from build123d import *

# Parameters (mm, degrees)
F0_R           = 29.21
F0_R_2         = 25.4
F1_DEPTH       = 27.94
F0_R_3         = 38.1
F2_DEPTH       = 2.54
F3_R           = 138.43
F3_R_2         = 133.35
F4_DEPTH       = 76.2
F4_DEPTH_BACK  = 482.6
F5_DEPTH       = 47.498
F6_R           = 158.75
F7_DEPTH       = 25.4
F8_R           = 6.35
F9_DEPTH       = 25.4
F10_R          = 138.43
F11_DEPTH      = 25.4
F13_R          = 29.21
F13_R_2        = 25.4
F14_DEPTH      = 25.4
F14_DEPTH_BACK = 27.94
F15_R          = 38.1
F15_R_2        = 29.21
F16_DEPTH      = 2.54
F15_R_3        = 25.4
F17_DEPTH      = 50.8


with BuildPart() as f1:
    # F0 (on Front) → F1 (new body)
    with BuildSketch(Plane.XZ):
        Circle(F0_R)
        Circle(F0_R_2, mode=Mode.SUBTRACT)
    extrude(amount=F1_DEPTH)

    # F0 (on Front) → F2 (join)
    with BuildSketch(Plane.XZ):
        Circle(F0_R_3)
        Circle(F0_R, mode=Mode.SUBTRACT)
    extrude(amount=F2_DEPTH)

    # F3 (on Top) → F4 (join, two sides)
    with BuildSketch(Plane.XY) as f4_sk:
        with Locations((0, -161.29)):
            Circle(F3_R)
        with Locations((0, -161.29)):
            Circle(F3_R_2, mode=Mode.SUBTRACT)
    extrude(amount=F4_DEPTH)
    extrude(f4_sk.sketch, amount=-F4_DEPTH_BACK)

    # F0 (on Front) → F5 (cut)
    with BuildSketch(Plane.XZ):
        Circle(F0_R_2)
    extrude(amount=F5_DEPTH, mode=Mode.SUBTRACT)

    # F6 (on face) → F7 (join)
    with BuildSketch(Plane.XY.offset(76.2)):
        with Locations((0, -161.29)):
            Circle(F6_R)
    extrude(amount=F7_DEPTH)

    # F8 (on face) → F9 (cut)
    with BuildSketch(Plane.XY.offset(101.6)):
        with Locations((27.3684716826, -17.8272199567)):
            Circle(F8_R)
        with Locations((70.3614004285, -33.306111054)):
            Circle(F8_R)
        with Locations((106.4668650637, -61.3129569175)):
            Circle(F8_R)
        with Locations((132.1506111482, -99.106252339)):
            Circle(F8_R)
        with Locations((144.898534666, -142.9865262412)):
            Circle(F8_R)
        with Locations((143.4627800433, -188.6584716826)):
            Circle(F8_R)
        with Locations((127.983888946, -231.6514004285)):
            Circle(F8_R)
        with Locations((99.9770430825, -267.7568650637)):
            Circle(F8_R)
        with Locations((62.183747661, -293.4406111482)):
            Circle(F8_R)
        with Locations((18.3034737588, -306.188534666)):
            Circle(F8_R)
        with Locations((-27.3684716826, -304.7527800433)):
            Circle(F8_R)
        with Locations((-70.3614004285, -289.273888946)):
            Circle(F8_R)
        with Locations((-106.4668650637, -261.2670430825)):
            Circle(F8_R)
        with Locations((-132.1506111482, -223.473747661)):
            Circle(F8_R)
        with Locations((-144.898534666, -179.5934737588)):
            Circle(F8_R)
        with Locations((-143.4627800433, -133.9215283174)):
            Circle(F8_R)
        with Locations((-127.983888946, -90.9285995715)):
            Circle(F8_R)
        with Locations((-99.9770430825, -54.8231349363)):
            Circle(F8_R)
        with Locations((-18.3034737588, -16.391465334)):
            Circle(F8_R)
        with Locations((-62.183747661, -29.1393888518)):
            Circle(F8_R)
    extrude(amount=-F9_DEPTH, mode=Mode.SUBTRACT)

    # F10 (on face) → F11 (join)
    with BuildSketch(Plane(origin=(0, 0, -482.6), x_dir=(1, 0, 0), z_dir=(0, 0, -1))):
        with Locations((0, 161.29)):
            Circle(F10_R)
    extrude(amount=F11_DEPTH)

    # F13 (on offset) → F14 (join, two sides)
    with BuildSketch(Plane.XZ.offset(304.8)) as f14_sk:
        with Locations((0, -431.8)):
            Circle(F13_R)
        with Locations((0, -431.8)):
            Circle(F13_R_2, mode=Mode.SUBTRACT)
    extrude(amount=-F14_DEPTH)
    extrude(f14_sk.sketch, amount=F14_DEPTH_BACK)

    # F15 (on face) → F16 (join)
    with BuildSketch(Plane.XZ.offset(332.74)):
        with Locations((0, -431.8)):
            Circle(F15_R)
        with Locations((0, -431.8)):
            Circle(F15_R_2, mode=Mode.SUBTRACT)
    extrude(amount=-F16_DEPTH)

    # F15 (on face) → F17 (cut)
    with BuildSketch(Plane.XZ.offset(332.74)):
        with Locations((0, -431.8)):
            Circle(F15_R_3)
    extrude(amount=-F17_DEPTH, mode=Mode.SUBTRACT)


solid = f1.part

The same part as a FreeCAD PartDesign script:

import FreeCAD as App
import Part
import Sketcher
Q = App.Units.Quantity

doc = App.newDocument("Part")
body = doc.addObject("PartDesign::Body", "Body")

sketch1 = doc.addObject("Sketcher::SketchObject", "Sketch")
body.addObject(sketch1)
sketch1.AttachmentSupport = (doc.XZ_Plane, [""])
sketch1.MapMode = "FlatFace"
sketch1.addGeometry([
    Part.Circle(App.Vector(0, 0, 0), App.Vector(0, 0, 1), 29),
    Part.Circle(App.Vector(0, 0, 0), App.Vector(0, 0, 1), 25),
], False)
sketch1.addConstraint([
    Sketcher.Constraint("Coincident", 0, 3, -1, 1),
    Sketcher.Constraint("Coincident", 1, 3, -1, 1),
    Sketcher.Constraint("Diameter", 1, Q("2 in")),
    Sketcher.Constraint("Diameter", 0, Q("2.3 in")),
])
pad1 = doc.addObject("PartDesign::Pad", "Pad")
body.addObject(pad1)
pad1.Profile = sketch1
pad1.Length = Q("1.1 in")

sketch2 = doc.addObject("Sketcher::SketchObject", "Sketch001")
body.addObject(sketch2)
sketch2.AttachmentSupport = (doc.XZ_Plane, [""])
sketch2.MapMode = "FlatFace"
sketch2.addGeometry([
    Part.Circle(App.Vector(0, 0, 0), App.Vector(0, 0, 1), 38),
    Part.Circle(App.Vector(0, 0, 0), App.Vector(0, 0, 1), 29),
], False)
sketch2.addConstraint([
    Sketcher.Constraint("Coincident", 0, 3, -1, 1),
    Sketcher.Constraint("Coincident", 1, 3, -1, 1),
    Sketcher.Constraint("Diameter", 0, Q("3 in")),
    Sketcher.Constraint("Diameter", 1, Q("2.3 in")),
])
pad2 = doc.addObject("PartDesign::Pad", "Pad001")
body.addObject(pad2)
pad2.Profile = sketch2
pad2.Length = Q("0.1 in")

sketch3 = doc.addObject("Sketcher::SketchObject", "Sketch002")
body.addObject(sketch3)
sketch3.AttachmentSupport = (doc.XY_Plane, [""])
sketch3.MapMode = "FlatFace"
sketch3.addGeometry([
    Part.Circle(App.Vector(0, -161, 0), App.Vector(0, 0, 1), 138),
    Part.Circle(App.Vector(0, -161, 0), App.Vector(0, 0, 1), 133),
], False)
sketch3.addConstraint([
    Sketcher.Constraint("Coincident", 1, 3, 0, 3),
    Sketcher.Constraint("PointOnObject", 0, 3, -2),
    Sketcher.Constraint("Diameter", 0, Q("10.9 in")),
    Sketcher.Constraint("Diameter", 1, Q("10.5 in")),
    Sketcher.Constraint("DistanceY", 0, 3, -1, 1, Q("6.35 in")),
])
pad3 = doc.addObject("PartDesign::Pad", "Pad002")
body.addObject(pad3)
pad3.Profile = sketch3
pad3.Type = "TwoLengths"
pad3.Length = Q("3 in")
pad3.Length2 = Q("19 in")

sketch4 = doc.addObject("Sketcher::SketchObject", "Sketch003")
body.addObject(sketch4)
sketch4.AttachmentSupport = (doc.XZ_Plane, [""])
sketch4.MapMode = "FlatFace"
sketch4.addGeometry(Part.Circle(App.Vector(0, 0, 0), App.Vector(0, 0, 1), 25), False)
sketch4.addConstraint([
    Sketcher.Constraint("Coincident", 0, 3, -1, 1),
    Sketcher.Constraint("Diameter", 0, Q("2 in")),
])
pocket1 = doc.addObject("PartDesign::Pocket", "Pocket")
body.addObject(pocket1)
pocket1.Profile = sketch4
pocket1.Length = Q("1.87 in")
pocket1.Reversed = True

sketch5 = doc.addObject("Sketcher::SketchObject", "Sketch004")
body.addObject(sketch5)
sketch5.AttachmentSupport = (doc.XY_Plane, [""])
sketch5.MapMode = "FlatFace"
sketch5.AttachmentOffset = App.Placement(App.Vector(0, 0, 3 * 25.4), App.Rotation())
sketch5.addGeometry(Part.Circle(App.Vector(0, -161, 0), App.Vector(0, 0, 1), 159), False)
sketch5.addConstraint([
    Sketcher.Constraint("PointOnObject", 0, 3, -2),
    Sketcher.Constraint("Diameter", 0, Q("12.5 in")),
    Sketcher.Constraint("DistanceY", 0, 3, -1, 1, Q("6.35 in")),
])
pad4 = doc.addObject("PartDesign::Pad", "Pad003")
body.addObject(pad4)
pad4.Profile = sketch5
pad4.Length = Q("1 in")

sketch6 = doc.addObject("Sketcher::SketchObject", "Sketch005")
body.addObject(sketch6)
sketch6.AttachmentSupport = (doc.XY_Plane, [""])
sketch6.MapMode = "FlatFace"
sketch6.AttachmentOffset = App.Placement(App.Vector(0, 0, 4 * 25.4), App.Rotation())
sketch6.addGeometry([
    Part.Circle(App.Vector(27, -18, 0), App.Vector(0, 0, 1), 6),
    Part.Circle(App.Vector(70, -33, 0), App.Vector(0, 0, 1), 6),
    Part.Circle(App.Vector(106, -61, 0), App.Vector(0, 0, 1), 6),
    Part.Circle(App.Vector(132, -99, 0), App.Vector(0, 0, 1), 6),
    Part.Circle(App.Vector(145, -143, 0), App.Vector(0, 0, 1), 6),
    Part.Circle(App.Vector(143, -189, 0), App.Vector(0, 0, 1), 6),
    Part.Circle(App.Vector(128, -232, 0), App.Vector(0, 0, 1), 6),
    Part.Circle(App.Vector(100, -268, 0), App.Vector(0, 0, 1), 6),
    Part.Circle(App.Vector(62, -293, 0), App.Vector(0, 0, 1), 6),
    Part.Circle(App.Vector(18, -306, 0), App.Vector(0, 0, 1), 6),
    Part.Circle(App.Vector(-27, -305, 0), App.Vector(0, 0, 1), 6),
    Part.Circle(App.Vector(-70, -289, 0), App.Vector(0, 0, 1), 6),
    Part.Circle(App.Vector(-106, -261, 0), App.Vector(0, 0, 1), 6),
    Part.Circle(App.Vector(-132, -223, 0), App.Vector(0, 0, 1), 6),
    Part.Circle(App.Vector(-145, -180, 0), App.Vector(0, 0, 1), 6),
    Part.Circle(App.Vector(-143, -134, 0), App.Vector(0, 0, 1), 6),
    Part.Circle(App.Vector(-128, -91, 0), App.Vector(0, 0, 1), 6),
    Part.Circle(App.Vector(-100, -55, 0), App.Vector(0, 0, 1), 6),
    Part.Circle(App.Vector(-18, -16, 0), App.Vector(0, 0, 1), 6),
    Part.Circle(App.Vector(-62, -29, 0), App.Vector(0, 0, 1), 6),
], False)
sketch6.addConstraint([
    Sketcher.Constraint("Equal", 0, 1),
    Sketcher.Constraint("Equal", 1, 2),
    Sketcher.Constraint("Equal", 2, 3),
    Sketcher.Constraint("Equal", 3, 4),
    Sketcher.Constraint("Equal", 4, 5),
    Sketcher.Constraint("Equal", 5, 6),
    Sketcher.Constraint("Equal", 6, 7),
    Sketcher.Constraint("Equal", 7, 8),
    Sketcher.Constraint("Equal", 8, 9),
    Sketcher.Constraint("Equal", 9, 10),
    Sketcher.Constraint("Equal", 10, 11),
    Sketcher.Constraint("Equal", 11, 12),
    Sketcher.Constraint("Equal", 12, 13),
    Sketcher.Constraint("Equal", 13, 14),
    Sketcher.Constraint("Equal", 14, 15),
    Sketcher.Constraint("Equal", 15, 16),
    Sketcher.Constraint("Equal", 16, 17),
    Sketcher.Constraint("Equal", 17, 18),
    Sketcher.Constraint("Equal", 18, 19),
    Sketcher.Constraint("Diameter", 0, Q("0.5 in")),
    Sketcher.Constraint("DistanceX", -1, 1, 1, 3, 70.3614),
    Sketcher.Constraint("DistanceY", 6, 3, -1, 1, 231.6514),
    Sketcher.Constraint("DistanceX", 11, 3, -1, 1, 70.3614),
    Sketcher.Constraint("DistanceY", 16, 3, -1, 1, 90.9286),
    Sketcher.Constraint("DistanceX", -1, 1, 0, 3, 27.368472),
    Sketcher.Constraint("DistanceY", 0, 3, -1, 1, 17.82722),
    Sketcher.Constraint("DistanceY", 1, 3, -1, 1, 33.306111),
    Sketcher.Constraint("DistanceX", -1, 1, 3, 3, 132.150611),
    Sketcher.Constraint("DistanceX", -1, 1, 5, 3, 143.46278),
    Sketcher.Constraint("DistanceY", 5, 3, -1, 1, 188.658472),
    Sketcher.Constraint("DistanceX", -1, 1, 6, 3, 127.983889),
    Sketcher.Constraint("DistanceY", 8, 3, -1, 1, 293.440611),
    Sketcher.Constraint("DistanceX", 10, 3, -1, 1, 27.368472),
    Sketcher.Constraint("DistanceY", 10, 3, -1, 1, 304.75278),
    Sketcher.Constraint("DistanceY", 11, 3, -1, 1, 289.273889),
    Sketcher.Constraint("DistanceX", 13, 3, -1, 1, 132.150611),
    Sketcher.Constraint("DistanceX", 15, 3, -1, 1, 143.46278),
    Sketcher.Constraint("DistanceY", 15, 3, -1, 1, 133.921528),
    Sketcher.Constraint("DistanceX", 16, 3, -1, 1, 127.983889),
    Sketcher.Constraint("DistanceY", 19, 3, -1, 1, 29.139389),
    Sketcher.Constraint("DistanceY", 3, 3, 1, 3, 65.800141),
    Sketcher.Constraint("DistanceX", 2, 3, 4, 3, 38.43167),
    Sketcher.Constraint("DistanceY", 4, 3, 2, 3, 81.673569),
    Sketcher.Constraint("DistanceX", 7, 3, 4, 3, 44.921492),
    Sketcher.Constraint("DistanceY", 7, 3, 4, 3, 124.770339),
    Sketcher.Constraint("DistanceX", 7, 3, 3, 3, 32.173568),
    Sketcher.Constraint("DistanceX", 8, 3, 6, 3, 65.800141),
    Sketcher.Constraint("DistanceX", 9, 3, 7, 3, 81.673569),
    Sketcher.Constraint("DistanceY", 9, 3, 7, 3, 38.43167),
    Sketcher.Constraint("DistanceX", 12, 3, 9, 3, 124.770339),
    Sketcher.Constraint("DistanceY", 9, 3, 12, 3, 44.921492),
    Sketcher.Constraint("DistanceY", 8, 3, 12, 3, 32.173568),
    Sketcher.Constraint("DistanceY", 11, 3, 13, 3, 65.800141),
    Sketcher.Constraint("DistanceX", 14, 3, 12, 3, 38.43167),
    Sketcher.Constraint("DistanceY", 12, 3, 14, 3, 81.673569),
    Sketcher.Constraint("DistanceX", 14, 3, 17, 3, 44.921492),
    Sketcher.Constraint("DistanceY", 14, 3, 17, 3, 124.770339),
    Sketcher.Constraint("DistanceX", 17, 3, 18, 3, 81.673569),
    Sketcher.Constraint("DistanceY", 17, 3, 18, 3, 38.43167),
    Sketcher.Constraint("DistanceX", 16, 3, 19, 3, 65.800141),
])
pocket2 = doc.addObject("PartDesign::Pocket", "Pocket001")
body.addObject(pocket2)
pocket2.Profile = sketch6
pocket2.Length = Q("1 in")

sketch7 = doc.addObject("Sketcher::SketchObject", "Sketch006")
body.addObject(sketch7)
sketch7.AttachmentSupport = (doc.XY_Plane, [""])
sketch7.MapMode = "FlatFace"
sketch7.AttachmentOffset = App.Placement(App.Vector(0, 0, -19 * 25.4), App.Rotation())
sketch7.addGeometry(Part.Circle(App.Vector(0, -161, 0), App.Vector(0, 0, 1), 138), False)
sketch7.addConstraint([
    Sketcher.Constraint("PointOnObject", 0, 3, -2),
    Sketcher.Constraint("Diameter", 0, Q("10.9 in")),
    Sketcher.Constraint("DistanceY", 0, 3, -1, 1, Q("6.35 in")),
])
pad5 = doc.addObject("PartDesign::Pad", "Pad004")
body.addObject(pad5)
pad5.Profile = sketch7
pad5.Length = Q("1 in")
pad5.Reversed = True

sketch8 = doc.addObject("Sketcher::SketchObject", "Sketch007")
body.addObject(sketch8)
sketch8.AttachmentSupport = (doc.XZ_Plane, [""])
sketch8.MapMode = "FlatFace"
sketch8.AttachmentOffset = App.Placement(App.Vector(0, 0, 12 * 25.4), App.Rotation())
sketch8.addGeometry([
    Part.Circle(App.Vector(0, -432, 0), App.Vector(0, 0, 1), 29),
    Part.Circle(App.Vector(0, -432, 0), App.Vector(0, 0, 1), 25),
], False)
sketch8.addConstraint([
    Sketcher.Constraint("Coincident", 1, 3, 0, 3),
    Sketcher.Constraint("PointOnObject", 0, 3, -2),
    Sketcher.Constraint("Diameter", 1, Q("2 in")),
    Sketcher.Constraint("Diameter", 0, Q("2.3 in")),
    Sketcher.Constraint("DistanceY", 0, 3, -1, 1, Q("17 in")),
])
pad6 = doc.addObject("PartDesign::Pad", "Pad005")
body.addObject(pad6)
pad6.Profile = sketch8
pad6.Type = "TwoLengths"
pad6.Length = Q("1 in")
pad6.Length2 = Q("1.1 in")
pad6.Reversed = True

sketch9 = doc.addObject("Sketcher::SketchObject", "Sketch008")
body.addObject(sketch9)
sketch9.AttachmentSupport = (doc.XZ_Plane, [""])
sketch9.MapMode = "FlatFace"
sketch9.AttachmentOffset = App.Placement(App.Vector(0, 0, 13.1 * 25.4), App.Rotation())
sketch9.addGeometry([
    Part.Circle(App.Vector(0, -432, 0), App.Vector(0, 0, 1), 38),
    Part.Circle(App.Vector(0, -432, 0), App.Vector(0, 0, 1), 29),
], False)
sketch9.addConstraint([
    Sketcher.Constraint("Coincident", 1, 3, 0, 3),
    Sketcher.Constraint("PointOnObject", 0, 3, -2),
    Sketcher.Constraint("Diameter", 0, Q("3 in")),
    Sketcher.Constraint("Diameter", 1, Q("2.3 in")),
    Sketcher.Constraint("DistanceY", 0, 3, -1, 1, Q("17 in")),
])
pad7 = doc.addObject("PartDesign::Pad", "Pad006")
body.addObject(pad7)
pad7.Profile = sketch9
pad7.Length = Q("0.1 in")
pad7.Reversed = True

sketch10 = doc.addObject("Sketcher::SketchObject", "Sketch009")
body.addObject(sketch10)
sketch10.AttachmentSupport = (doc.XZ_Plane, [""])
sketch10.MapMode = "FlatFace"
sketch10.AttachmentOffset = App.Placement(App.Vector(0, 0, 13.1 * 25.4), App.Rotation())
sketch10.addGeometry(Part.Circle(App.Vector(0, -432, 0), App.Vector(0, 0, 1), 25), False)
sketch10.addConstraint([
    Sketcher.Constraint("PointOnObject", 0, 3, -2),
    Sketcher.Constraint("Diameter", 0, Q("2 in")),
    Sketcher.Constraint("DistanceY", 0, 3, -1, 1, Q("17 in")),
])
pocket3 = doc.addObject("PartDesign::Pocket", "Pocket002")
body.addObject(pocket3)
pocket3.Profile = sketch10
pocket3.Length = Q("2 in")

doc.recompute()
